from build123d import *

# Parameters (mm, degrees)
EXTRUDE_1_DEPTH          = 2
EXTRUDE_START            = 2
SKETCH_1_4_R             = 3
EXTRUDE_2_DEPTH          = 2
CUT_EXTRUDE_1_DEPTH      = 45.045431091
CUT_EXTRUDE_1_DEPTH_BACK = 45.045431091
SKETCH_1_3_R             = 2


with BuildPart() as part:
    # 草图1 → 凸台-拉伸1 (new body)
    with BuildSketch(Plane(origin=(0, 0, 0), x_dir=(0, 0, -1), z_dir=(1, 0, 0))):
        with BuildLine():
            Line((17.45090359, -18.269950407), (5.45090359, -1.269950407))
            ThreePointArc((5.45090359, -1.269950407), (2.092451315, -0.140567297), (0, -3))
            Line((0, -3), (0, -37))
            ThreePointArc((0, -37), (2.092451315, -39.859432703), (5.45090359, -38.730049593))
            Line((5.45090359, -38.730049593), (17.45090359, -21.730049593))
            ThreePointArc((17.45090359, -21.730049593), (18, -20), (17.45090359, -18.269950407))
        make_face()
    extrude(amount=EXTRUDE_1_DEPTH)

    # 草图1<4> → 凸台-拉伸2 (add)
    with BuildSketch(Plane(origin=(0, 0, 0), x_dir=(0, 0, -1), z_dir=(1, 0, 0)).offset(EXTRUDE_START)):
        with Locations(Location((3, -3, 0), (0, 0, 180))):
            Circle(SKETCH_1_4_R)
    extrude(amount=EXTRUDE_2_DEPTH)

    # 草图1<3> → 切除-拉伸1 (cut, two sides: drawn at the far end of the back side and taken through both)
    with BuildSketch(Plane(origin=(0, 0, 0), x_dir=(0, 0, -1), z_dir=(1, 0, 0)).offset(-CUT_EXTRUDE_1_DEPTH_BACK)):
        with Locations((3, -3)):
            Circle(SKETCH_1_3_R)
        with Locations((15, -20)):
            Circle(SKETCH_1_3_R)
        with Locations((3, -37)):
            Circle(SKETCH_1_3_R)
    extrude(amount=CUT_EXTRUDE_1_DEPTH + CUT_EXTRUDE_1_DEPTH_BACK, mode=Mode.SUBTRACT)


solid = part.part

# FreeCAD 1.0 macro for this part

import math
import FreeCAD as App
import Part
import Sketcher
from FreeCAD import Vector
Q = App.Units.Quantity

doc = App.newDocument("Part")
params = doc.addObject("Spreadsheet::Sheet", "Params")
for row, (alias, value) in enumerate([
    ("sketch1_radius", "3 mm"),
    ("sketch1_width", "34 mm"),
    ("pad1_length", "2 mm"),
    ("sketch2_diameter", "6 mm"),
    ("pad2_length", "2 mm"),
    ("sketch3_diameter", "4 mm"),
], start=1):
    params.set(f"A{row}", alias)
    params.set(f"B{row}", "=" + value)
    params.setAlias(f"B{row}", alias)

body = doc.addObject("PartDesign::Body", "Body")

# Sketch on YZ plane
sketch1 = doc.addObject("Sketcher::SketchObject", "Sketch")
body.addObject(sketch1)
sketch1.AttachmentSupport = (doc.YZ_Plane, [""])
sketch1.MapMode = "FlatFace"
sketch1.addGeometry([
    Part.LineSegment(Vector(-18.3, -17.5, 0), Vector(-1.3, -5.5, 0)),  # 0
    Part.ArcOfCircle(Part.Circle(Vector(-3, -3, 0), Vector(0, 0, 1), 3), math.radians(-55), math.radians(90)),  # 1
    Part.LineSegment(Vector(-3, 0, 0), Vector(-37, 0, 0)),  # 2
    Part.ArcOfCircle(Part.Circle(Vector(-37, -3, 0), Vector(0, 0, 1), 3), math.radians(90), math.radians(235)),  # 3
    Part.LineSegment(Vector(-38.7, -5.5, 0), Vector(-21.7, -17.5, 0)),  # 4
    Part.ArcOfCircle(Part.Circle(Vector(-20, -15, 0), Vector(0, 0, 1), 3), math.radians(-125), math.radians(-55)),  # 5
], False)
sketch1.addConstraint([
    Sketcher.Constraint("Tangent", 0, 2, 1, 1),
    Sketcher.Constraint("Tangent", 1, 2, 2, 1),
    Sketcher.Constraint("Tangent", 2, 2, 3, 1),
    Sketcher.Constraint("Tangent", 3, 2, 4, 1),
    Sketcher.Constraint("Tangent", 4, 2, 5, 1),
    Sketcher.Constraint("Tangent", 5, 2, 0, 1),
    Sketcher.Constraint("Horizontal", 2),
    Sketcher.Constraint("Equal", 1, 3),
    Sketcher.Constraint("Equal", 3, 5),
    Sketcher.Constraint("PointOnObject", 1, 2, -1),
    Sketcher.Constraint("Horizontal", 0, 2, 3, 2),
    Sketcher.Constraint("Radius", 1, Q("3 mm")),
    Sketcher.Constraint("DistanceX", 2, 2, 2, 1, Q("34 mm")),
    Sketcher.Constraint("DistanceX", 1, 3, -1, 1, Q("3 mm")),
    Sketcher.Constraint("DistanceY", 5, 3, -1, 1, Q("15 mm")),
])
sketch1.setExpression("Constraints[11]", "Params.sketch1_radius")
sketch1.setExpression("Constraints[12]", "Params.sketch1_width")
pad1 = doc.addObject("PartDesign::Pad", "Pad")
body.addObject(pad1)
pad1.Profile = sketch1
pad1.setExpression("Length", "Params.pad1_length")

# Sketch on YZ plane
sketch2 = doc.addObject("Sketcher::SketchObject", "Sketch001")
body.addObject(sketch2)
sketch2.AttachmentSupport = (doc.YZ_Plane, [""])
sketch2.MapMode = "FlatFace"
sketch2.AttachmentOffset = App.Placement(Vector(0, 0, 2), App.Rotation())
sketch2.addGeometry(Part.Circle(Vector(-3, -3, 0), Vector(0, 0, 1), 3), False)
sketch2.addConstraint([
    Sketcher.Constraint("Diameter", 0, Q("6 mm")),
    Sketcher.Constraint("DistanceX", 0, 3, -1, 1, Q("3 mm")),
    Sketcher.Constraint("DistanceY", 0, 3, -1, 1, Q("3 mm")),
])
sketch2.setExpression("Constraints[0]", "Params.sketch2_diameter")
pad2 = doc.addObject("PartDesign::Pad", "Pad001")
body.addObject(pad2)
pad2.Profile = sketch2
pad2.setExpression("Length", "Params.pad2_length")

# Sketch on YZ plane
sketch3 = doc.addObject("Sketcher::SketchObject", "Sketch002")
body.addObject(sketch3)
sketch3.AttachmentSupport = (doc.YZ_Plane, [""])
sketch3.MapMode = "FlatFace"
sketch3.addGeometry([
    Part.Circle(Vector(-3, -3, 0), Vector(0, 0, 1), 2),
    Part.Circle(Vector(-20, -15, 0), Vector(0, 0, 1), 2),
    Part.Circle(Vector(-37, -3, 0), Vector(0, 0, 1), 2),
], False)
sketch3.addConstraint([
    Sketcher.Constraint("Equal", 0, 1),
    Sketcher.Constraint("Equal", 1, 2),
    Sketcher.Constraint("Horizontal", 0, 3, 2, 3),
    Sketcher.Constraint("Diameter", 0, Q("4 mm")),
    Sketcher.Constraint("DistanceX", 0, 3, -1, 1, Q("3 mm")),
    Sketcher.Constraint("DistanceY", 0, 3, -1, 1, Q("3 mm")),
    Sketcher.Constraint("DistanceX", 1, 3, -1, 1, Q("20 mm")),
    Sketcher.Constraint("DistanceY", 1, 3, -1, 1, Q("15 mm")),
    Sketcher.Constraint("DistanceX", 2, 3, -1, 1, Q("37 mm")),
])
sketch3.setExpression("Constraints[3]", "Params.sketch3_diameter")
pocket1 = doc.addObject("PartDesign::Pocket", "Pocket")
body.addObject(pocket1)
pocket1.Profile = sketch3
pocket1.Type = "ThroughAll"
pocket1.Midplane = True

doc.recompute()
